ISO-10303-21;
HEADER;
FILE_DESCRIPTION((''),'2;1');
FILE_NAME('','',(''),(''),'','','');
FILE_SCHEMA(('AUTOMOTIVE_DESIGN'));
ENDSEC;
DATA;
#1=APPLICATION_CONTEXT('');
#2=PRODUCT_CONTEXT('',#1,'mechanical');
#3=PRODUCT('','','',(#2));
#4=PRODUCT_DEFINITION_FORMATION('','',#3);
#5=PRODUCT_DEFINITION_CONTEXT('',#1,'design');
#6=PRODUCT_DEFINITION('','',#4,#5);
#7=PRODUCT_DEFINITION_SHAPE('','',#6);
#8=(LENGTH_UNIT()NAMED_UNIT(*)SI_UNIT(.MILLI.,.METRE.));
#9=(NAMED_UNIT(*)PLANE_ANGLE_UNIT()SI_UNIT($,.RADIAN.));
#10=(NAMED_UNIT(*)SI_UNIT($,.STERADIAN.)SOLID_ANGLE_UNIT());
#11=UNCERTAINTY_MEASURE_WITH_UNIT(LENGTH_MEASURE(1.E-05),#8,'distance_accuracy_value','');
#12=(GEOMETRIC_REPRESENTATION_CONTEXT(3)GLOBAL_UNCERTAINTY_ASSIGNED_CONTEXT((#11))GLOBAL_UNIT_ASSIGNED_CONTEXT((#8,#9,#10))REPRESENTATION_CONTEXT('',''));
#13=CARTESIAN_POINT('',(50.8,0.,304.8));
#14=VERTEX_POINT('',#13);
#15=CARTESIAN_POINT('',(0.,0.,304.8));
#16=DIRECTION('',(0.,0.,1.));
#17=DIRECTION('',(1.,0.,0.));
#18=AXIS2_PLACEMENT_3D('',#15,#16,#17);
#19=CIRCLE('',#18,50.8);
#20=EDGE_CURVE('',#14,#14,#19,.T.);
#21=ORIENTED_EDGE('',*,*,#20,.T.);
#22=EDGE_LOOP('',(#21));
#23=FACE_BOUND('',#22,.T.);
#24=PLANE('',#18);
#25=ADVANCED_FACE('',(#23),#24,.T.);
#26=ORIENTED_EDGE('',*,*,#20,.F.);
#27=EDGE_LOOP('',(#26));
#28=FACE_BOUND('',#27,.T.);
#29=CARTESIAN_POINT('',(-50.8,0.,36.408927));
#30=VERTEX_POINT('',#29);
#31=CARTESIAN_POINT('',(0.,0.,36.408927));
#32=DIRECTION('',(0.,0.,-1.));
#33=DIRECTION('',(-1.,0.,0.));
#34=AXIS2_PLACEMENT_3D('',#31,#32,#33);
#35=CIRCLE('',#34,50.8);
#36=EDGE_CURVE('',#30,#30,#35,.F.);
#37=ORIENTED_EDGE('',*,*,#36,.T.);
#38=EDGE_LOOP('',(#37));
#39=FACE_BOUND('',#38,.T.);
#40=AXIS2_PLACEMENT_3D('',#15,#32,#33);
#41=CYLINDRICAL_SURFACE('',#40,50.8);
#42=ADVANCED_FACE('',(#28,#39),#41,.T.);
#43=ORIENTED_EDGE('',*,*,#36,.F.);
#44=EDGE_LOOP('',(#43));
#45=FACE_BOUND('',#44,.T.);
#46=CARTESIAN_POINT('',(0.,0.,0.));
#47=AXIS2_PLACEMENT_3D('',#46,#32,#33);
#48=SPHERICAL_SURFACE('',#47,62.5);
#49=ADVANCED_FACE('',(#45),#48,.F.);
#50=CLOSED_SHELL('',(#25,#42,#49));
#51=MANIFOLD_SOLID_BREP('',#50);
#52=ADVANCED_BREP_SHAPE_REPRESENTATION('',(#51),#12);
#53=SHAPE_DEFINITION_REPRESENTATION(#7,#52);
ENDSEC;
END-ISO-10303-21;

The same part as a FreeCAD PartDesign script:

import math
import FreeCAD as App
import Part
import Sketcher

V = App.Vector
Q = App.Units.Quantity

doc = App.newDocument("Part")
body = doc.addObject("PartDesign::Body", "Body")

# Sketch on XY plane
sketch1 = body.newObject("Sketcher::SketchObject", "Sketch")
sketch1.AttachmentSupport = (doc.getObject("XY_Plane"), [""])
sketch1.MapMode = "FlatFace"
sketch1.addGeometry(Part.Circle(V(0, 0, 0), V(0, 0, 1), 51), False)
sketch1.addConstraint([
    Sketcher.Constraint("Coincident", 0, 3, -1, 1),
    Sketcher.Constraint("Diameter", 0, Q("4 in")),
])
pad1 = body.newObject("PartDesign::Pad", "Pad")
pad1.Profile = sketch1
pad1.Length = Q("12 in")

# Sketch on XY plane
sketch2 = body.newObject("Sketcher::SketchObject", "Sketch001")
sketch2.AttachmentSupport = (doc.getObject("XY_Plane"), [""])
sketch2.MapMode = "FlatFace"
sketch2.addGeometry([
    Part.LineSegment(V(0, 62, 0), V(0, -62, 0)),
    Part.ArcOfCircle(Part.Circle(V(0, 0, 0), V(0, 0, 1), 62), math.radians(90), math.radians(270)),
], False)
sketch2.addConstraint([
    Sketcher.Constraint("Coincident", 0, 1, 1, 1),
    Sketcher.Constraint("Coincident", 1, 2, 0, 2),
    Sketcher.Constraint("Vertical", 0),
    Sketcher.Constraint("Coincident", 1, 3, -1, 1),
    Sketcher.Constraint("PointOnObject", 0, 1, -2),
    Sketcher.Constraint("Radius", 1, Q("62.5 mm")),
])
groove = body.newObject("PartDesign::Groove", "Groove")
groove.Profile = sketch2
groove.ReferenceAxis = (sketch2, ["V_Axis"])
groove.Angle = 180

doc.recompute()
